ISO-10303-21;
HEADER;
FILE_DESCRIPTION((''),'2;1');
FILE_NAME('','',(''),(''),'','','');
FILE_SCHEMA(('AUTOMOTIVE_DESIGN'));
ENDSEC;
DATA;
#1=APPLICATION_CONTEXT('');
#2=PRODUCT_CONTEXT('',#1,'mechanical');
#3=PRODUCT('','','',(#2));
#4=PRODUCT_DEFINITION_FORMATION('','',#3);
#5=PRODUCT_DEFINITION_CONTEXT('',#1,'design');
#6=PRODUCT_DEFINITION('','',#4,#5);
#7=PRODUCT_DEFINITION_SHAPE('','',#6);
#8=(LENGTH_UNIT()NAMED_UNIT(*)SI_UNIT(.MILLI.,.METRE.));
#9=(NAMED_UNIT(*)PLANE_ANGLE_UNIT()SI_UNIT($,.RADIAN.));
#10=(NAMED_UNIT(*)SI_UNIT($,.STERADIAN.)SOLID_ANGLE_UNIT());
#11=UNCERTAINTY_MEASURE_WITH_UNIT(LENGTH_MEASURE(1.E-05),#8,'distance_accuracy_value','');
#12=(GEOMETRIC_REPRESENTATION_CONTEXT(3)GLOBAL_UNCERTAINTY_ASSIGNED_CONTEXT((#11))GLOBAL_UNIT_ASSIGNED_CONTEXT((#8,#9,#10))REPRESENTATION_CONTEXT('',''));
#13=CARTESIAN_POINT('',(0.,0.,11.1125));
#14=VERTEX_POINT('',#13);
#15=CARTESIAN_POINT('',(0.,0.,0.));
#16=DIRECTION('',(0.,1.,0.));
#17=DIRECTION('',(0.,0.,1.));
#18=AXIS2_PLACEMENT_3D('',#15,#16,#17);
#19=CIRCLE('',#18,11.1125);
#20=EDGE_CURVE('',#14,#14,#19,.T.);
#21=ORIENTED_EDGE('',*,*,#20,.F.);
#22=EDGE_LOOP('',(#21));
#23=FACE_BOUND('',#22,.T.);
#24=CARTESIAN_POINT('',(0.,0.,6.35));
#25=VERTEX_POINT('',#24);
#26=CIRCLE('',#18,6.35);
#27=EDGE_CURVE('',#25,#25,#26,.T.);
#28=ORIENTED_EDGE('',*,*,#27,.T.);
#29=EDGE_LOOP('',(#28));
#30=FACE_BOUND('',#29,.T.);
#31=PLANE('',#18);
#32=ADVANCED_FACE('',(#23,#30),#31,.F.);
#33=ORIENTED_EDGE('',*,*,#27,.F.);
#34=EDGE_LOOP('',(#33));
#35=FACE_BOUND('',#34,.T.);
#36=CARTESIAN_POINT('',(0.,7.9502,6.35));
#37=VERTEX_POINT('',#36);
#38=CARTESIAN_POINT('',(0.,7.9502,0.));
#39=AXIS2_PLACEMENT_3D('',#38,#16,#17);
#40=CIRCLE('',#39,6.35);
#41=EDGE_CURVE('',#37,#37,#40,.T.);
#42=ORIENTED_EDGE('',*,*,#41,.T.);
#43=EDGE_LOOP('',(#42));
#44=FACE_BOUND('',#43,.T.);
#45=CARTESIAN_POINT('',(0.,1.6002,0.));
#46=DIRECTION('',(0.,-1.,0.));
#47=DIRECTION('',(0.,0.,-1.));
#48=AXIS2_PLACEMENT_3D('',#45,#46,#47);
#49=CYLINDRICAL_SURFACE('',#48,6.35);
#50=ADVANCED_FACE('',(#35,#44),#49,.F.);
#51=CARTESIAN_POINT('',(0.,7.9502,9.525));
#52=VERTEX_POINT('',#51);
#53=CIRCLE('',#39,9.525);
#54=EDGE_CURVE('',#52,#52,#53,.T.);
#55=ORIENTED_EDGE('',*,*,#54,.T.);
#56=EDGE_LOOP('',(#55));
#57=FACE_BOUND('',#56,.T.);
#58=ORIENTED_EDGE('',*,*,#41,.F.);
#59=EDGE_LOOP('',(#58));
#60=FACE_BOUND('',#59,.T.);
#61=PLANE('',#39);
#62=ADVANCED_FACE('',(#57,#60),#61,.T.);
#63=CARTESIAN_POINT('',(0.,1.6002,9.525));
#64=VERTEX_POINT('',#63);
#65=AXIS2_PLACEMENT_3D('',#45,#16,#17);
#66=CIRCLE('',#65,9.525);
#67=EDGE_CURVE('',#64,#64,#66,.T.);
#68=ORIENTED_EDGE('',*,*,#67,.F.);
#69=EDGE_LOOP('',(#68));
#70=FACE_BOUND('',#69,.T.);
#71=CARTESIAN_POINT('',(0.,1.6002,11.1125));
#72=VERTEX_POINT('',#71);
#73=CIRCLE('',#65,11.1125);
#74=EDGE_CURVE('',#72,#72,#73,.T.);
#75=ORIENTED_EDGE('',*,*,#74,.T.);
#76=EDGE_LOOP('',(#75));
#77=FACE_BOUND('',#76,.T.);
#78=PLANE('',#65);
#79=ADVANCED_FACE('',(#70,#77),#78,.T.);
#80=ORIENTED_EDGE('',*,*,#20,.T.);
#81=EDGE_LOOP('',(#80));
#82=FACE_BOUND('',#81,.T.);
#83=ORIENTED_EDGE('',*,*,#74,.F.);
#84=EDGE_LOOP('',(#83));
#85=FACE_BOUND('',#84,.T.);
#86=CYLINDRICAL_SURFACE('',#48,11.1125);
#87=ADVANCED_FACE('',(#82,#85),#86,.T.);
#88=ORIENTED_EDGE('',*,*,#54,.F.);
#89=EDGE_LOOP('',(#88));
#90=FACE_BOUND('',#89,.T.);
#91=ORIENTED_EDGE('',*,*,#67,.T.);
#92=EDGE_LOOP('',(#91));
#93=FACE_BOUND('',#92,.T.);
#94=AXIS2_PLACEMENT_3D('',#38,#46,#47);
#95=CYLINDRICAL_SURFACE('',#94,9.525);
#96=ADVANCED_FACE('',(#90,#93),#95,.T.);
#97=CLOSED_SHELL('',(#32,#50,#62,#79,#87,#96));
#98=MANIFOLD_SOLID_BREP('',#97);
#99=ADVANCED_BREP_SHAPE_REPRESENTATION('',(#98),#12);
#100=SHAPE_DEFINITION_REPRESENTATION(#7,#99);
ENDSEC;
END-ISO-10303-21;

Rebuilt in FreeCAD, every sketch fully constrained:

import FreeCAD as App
import Part
import Sketcher

V = App.Vector
Q = App.Units.Quantity

doc = App.newDocument("Part")
body = doc.addObject("PartDesign::Body", "Body")

# Sketch on XZ plane
sketch1 = doc.addObject("Sketcher::SketchObject", "Sketch")
body.addObject(sketch1)
sketch1.AttachmentSupport = (doc.XZ_Plane, [""])
sketch1.MapMode = "FlatFace"
sketch1.addGeometry(Part.Circle(V(0, 0, 0), V(0, 0, 1), 11), False)
sketch1.addGeometry(Part.Circle(V(0, 0, 0), V(0, 0, 1), 6), False)
sketch1.addConstraint(Sketcher.Constraint("Coincident", 0, 3, -1, 1))
sketch1.addConstraint(Sketcher.Constraint("Coincident", 1, 3, -1, 1))
sketch1.addConstraint(Sketcher.Constraint("Diameter", 1, Q("0.5 in")))
sketch1.addConstraint(Sketcher.Constraint("Diameter", 0, Q("0.875 in")))
pad1 = doc.addObject("PartDesign::Pad", "Pad")
body.addObject(pad1)
pad1.Profile = sketch1
pad1.Length = Q("0.063 in")
pad1.Reversed = True

# Sketch on XZ plane
sketch2 = doc.addObject("Sketcher::SketchObject", "Sketch001")
body.addObject(sketch2)
sketch2.AttachmentSupport = (doc.XZ_Plane, [""])
sketch2.MapMode = "FlatFace"
sketch2.AttachmentOffset = App.Placement(V(0, 0, -0.063 * 25.4), App.Rotation())
sketch2.addGeometry(Part.Circle(V(0, 0, 0), V(0, 0, 1), 10), False)
sketch2.addGeometry(Part.Circle(V(0, 0, 0), V(0, 0, 1), 6), False)
sketch2.addConstraint(Sketcher.Constraint("Coincident", 0, 3, -1, 1))
sketch2.addConstraint(Sketcher.Constraint("Coincident", 1, 3, -1, 1))
sketch2.addConstraint(Sketcher.Constraint("Diameter", 1, Q("0.5 in")))
sketch2.addConstraint(Sketcher.Constraint("Diameter", 0, Q("0.75 in")))
pad2 = doc.addObject("PartDesign::Pad", "Pad001")
body.addObject(pad2)
pad2.Profile = sketch2
pad2.Length = Q("0.25 in")
pad2.Reversed = True

doc.recompute()
